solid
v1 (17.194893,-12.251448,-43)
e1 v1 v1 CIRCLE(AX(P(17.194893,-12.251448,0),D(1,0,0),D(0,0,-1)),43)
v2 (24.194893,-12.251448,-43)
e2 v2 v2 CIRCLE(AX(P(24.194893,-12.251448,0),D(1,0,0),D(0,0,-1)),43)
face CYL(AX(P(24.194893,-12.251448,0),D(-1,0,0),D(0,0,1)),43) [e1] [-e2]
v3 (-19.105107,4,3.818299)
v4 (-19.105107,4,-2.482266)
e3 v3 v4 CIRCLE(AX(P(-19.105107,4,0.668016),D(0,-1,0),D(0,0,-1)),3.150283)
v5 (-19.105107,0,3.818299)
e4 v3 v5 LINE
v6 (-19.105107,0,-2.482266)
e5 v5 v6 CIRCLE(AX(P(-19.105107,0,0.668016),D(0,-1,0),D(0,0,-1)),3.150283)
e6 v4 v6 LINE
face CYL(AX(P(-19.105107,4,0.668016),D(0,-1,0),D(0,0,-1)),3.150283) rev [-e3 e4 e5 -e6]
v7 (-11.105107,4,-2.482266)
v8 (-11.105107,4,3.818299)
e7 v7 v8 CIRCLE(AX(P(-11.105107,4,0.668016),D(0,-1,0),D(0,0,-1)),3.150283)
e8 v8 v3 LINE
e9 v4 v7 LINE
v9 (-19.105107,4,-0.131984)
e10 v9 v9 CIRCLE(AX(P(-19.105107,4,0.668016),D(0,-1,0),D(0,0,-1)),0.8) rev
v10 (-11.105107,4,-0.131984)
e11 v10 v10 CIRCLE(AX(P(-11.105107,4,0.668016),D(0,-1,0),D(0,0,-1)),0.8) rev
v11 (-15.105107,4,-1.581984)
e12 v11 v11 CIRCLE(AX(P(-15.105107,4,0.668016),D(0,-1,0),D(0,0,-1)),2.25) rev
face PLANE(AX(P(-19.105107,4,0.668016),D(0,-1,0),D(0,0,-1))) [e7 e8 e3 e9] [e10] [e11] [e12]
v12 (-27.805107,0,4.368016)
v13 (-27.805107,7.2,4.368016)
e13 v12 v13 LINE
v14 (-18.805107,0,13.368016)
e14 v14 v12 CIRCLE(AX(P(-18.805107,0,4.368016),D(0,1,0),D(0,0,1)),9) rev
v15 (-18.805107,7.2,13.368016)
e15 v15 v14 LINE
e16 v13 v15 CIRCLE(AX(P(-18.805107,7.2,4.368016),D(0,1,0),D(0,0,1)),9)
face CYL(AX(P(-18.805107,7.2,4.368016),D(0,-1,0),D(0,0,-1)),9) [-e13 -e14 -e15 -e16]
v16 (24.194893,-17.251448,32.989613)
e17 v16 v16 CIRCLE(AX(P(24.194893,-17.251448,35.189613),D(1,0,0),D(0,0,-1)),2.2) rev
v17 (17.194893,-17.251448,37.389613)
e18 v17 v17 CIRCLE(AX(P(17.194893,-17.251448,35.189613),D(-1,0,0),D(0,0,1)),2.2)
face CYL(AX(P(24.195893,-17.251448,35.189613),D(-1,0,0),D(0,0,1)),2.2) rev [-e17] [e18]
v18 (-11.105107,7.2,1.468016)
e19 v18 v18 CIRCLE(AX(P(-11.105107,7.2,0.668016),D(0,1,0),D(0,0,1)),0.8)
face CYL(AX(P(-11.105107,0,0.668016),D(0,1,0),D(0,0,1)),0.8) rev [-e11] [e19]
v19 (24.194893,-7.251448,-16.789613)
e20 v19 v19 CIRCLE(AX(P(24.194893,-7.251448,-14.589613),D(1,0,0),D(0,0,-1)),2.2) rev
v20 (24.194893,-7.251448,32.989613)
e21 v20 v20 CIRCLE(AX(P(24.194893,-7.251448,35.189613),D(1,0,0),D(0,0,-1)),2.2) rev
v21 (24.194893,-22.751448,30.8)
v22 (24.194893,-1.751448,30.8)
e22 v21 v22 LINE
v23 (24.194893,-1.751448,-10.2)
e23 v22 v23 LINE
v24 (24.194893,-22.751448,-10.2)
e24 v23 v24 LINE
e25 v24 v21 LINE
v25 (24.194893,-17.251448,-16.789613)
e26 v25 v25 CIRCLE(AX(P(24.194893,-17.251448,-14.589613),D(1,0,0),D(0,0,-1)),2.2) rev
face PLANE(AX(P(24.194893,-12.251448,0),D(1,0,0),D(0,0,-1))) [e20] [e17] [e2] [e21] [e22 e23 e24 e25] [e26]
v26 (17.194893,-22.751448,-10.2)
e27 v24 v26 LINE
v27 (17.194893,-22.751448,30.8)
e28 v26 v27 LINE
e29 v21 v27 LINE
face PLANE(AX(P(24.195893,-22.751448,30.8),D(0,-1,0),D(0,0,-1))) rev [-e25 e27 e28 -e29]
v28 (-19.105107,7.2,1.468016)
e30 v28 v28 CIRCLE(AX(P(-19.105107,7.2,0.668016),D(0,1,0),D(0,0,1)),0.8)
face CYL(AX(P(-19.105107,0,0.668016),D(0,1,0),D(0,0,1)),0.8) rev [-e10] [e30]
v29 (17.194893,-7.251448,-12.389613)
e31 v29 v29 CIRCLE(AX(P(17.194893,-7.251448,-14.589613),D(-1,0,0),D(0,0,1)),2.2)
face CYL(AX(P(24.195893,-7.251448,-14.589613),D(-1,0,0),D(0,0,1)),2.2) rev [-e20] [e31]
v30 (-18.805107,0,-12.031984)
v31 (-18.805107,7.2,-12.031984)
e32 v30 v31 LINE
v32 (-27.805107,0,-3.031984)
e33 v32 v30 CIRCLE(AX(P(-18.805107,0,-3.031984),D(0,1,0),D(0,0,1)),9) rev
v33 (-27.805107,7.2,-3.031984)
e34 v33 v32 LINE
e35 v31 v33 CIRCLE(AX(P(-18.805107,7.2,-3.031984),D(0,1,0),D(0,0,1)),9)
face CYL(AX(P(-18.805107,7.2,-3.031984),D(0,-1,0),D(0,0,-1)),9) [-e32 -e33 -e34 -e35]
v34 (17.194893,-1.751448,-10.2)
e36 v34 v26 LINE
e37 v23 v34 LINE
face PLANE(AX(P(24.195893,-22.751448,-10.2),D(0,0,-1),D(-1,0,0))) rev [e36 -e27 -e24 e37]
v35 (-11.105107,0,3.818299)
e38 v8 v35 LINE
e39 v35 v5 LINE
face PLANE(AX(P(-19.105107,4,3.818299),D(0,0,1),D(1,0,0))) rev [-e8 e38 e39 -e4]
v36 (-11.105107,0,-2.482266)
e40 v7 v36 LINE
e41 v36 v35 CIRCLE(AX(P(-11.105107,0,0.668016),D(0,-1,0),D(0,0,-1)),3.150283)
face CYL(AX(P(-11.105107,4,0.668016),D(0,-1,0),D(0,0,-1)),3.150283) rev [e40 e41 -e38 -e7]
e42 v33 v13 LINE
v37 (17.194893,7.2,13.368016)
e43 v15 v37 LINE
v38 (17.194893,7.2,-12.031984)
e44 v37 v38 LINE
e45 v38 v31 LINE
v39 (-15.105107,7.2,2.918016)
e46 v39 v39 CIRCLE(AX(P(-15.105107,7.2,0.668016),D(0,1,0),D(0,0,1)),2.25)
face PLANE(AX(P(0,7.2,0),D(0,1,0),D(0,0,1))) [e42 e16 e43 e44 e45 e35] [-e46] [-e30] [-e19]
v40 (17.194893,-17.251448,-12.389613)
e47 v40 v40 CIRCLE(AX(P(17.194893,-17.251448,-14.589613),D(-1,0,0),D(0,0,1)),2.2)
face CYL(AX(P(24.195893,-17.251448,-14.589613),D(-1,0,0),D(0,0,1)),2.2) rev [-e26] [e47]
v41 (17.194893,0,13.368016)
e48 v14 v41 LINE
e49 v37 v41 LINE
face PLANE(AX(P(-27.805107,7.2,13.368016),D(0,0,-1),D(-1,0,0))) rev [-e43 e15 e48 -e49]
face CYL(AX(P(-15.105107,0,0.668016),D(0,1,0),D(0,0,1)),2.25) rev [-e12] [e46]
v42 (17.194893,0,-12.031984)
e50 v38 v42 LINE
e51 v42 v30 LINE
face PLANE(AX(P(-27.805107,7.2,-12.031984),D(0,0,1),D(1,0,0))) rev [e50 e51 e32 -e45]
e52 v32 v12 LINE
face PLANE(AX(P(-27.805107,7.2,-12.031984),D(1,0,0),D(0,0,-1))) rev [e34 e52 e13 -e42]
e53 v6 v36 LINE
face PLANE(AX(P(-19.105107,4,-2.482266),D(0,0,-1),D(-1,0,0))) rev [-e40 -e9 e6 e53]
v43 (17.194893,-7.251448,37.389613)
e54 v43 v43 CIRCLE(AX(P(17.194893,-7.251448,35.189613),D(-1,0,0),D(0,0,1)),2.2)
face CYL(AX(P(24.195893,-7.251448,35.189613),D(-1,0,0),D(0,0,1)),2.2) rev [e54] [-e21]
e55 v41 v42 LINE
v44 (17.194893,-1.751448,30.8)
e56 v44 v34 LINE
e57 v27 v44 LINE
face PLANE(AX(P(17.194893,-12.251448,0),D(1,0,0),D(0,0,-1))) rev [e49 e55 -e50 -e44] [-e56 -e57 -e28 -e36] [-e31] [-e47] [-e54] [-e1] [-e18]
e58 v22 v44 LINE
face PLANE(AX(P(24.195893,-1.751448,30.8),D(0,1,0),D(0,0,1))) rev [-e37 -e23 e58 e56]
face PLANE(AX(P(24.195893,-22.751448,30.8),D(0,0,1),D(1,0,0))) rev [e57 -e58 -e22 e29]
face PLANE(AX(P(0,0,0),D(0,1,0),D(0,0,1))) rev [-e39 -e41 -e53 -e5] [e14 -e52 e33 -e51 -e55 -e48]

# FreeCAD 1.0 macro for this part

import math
import FreeCAD as App
import Part
import Sketcher


def edges_at(feature, points):
    """Names of the edges that pass closest to the given points."""
    edges = feature.Shape.Edges
    near = lambda p: min(range(len(edges)), key=lambda i: edges[i].distToShape(Part.Vertex(*p))[0])
    return sorted({f"Edge{near(p) + 1}" for p in points})

doc = App.newDocument("Part")
body = doc.addObject("PartDesign::Body", "Body")

# Sketch on XZ plane
sketch1 = body.newObject("Sketcher::SketchObject", "Sketch")
sketch1.AttachmentSupport = (doc.getObject("XZ_Plane"), [""])
sketch1.MapMode = "FlatFace"
sketch1.addGeometry(Part.LineSegment(App.Vector(-28, -12, 0), App.Vector(-28, 13, 0)), False)
sketch1.addGeometry(Part.LineSegment(App.Vector(-28, 13, 0), App.Vector(17, 13, 0)), False)
sketch1.addGeometry(Part.LineSegment(App.Vector(17, 13, 0), App.Vector(17, -12, 0)), False)
sketch1.addGeometry(Part.LineSegment(App.Vector(17, -12, 0), App.Vector(-28, -12, 0)), False)
sketch1.addConstraint(Sketcher.Constraint("Coincident", 0, 2, 1, 1))
sketch1.addConstraint(Sketcher.Constraint("Coincident", 1, 2, 2, 1))
sketch1.addConstraint(Sketcher.Constraint("Coincident", 2, 2, 3, 1))
sketch1.addConstraint(Sketcher.Constraint("Coincident", 3, 2, 0, 1))
sketch1.addConstraint(Sketcher.Constraint("Vertical", 0))
sketch1.addConstraint(Sketcher.Constraint("Horizontal", 1))
sketch1.addConstraint(Sketcher.Constraint("Vertical", 2))
sketch1.addConstraint(Sketcher.Constraint("Horizontal", 3))
sketch1.addConstraint(Sketcher.Constraint("DistanceX", 1, 1, 1, 2, 45.0))
sketch1.addConstraint(Sketcher.Constraint("DistanceY", 0, 1, 0, 2, 25.4))
sketch1.addConstraint(Sketcher.Constraint("DistanceX", 0, 2, -1, 1, 27.805107))
sketch1.addConstraint(Sketcher.Constraint("DistanceY", -1, 1, 0, 2, 13.368016))
pad1 = body.newObject("PartDesign::Pad", "Pad")
pad1.Profile = sketch1
pad1.Length = 7.2
pad1.Reversed = True
doc.recompute()

fillet = body.newObject("PartDesign::Fillet", "Fillet")
fillet.Base = (pad1, edges_at(pad1, [(-27.805, 3.6, -12.032), (-27.805, 3.6, 13.368)]))
fillet.Radius = 9

# Sketch on XZ plane
sketch2 = body.newObject("Sketcher::SketchObject", "Sketch001")
sketch2.AttachmentSupport = (doc.getObject("XZ_Plane"), [""])
sketch2.MapMode = "FlatFace"
sketch2.AttachmentOffset = App.Placement(App.Vector(0, 0, -7.2), App.Rotation())
sketch2.addGeometry(Part.Circle(App.Vector(-15.1, 0.7, 0), App.Vector(0, 0, 1), 2.2), False)
sketch2.addGeometry(Part.Circle(App.Vector(-19.1, 0.7, 0), App.Vector(0, 0, 1), 0.8), False)
sketch2.addGeometry(Part.Circle(App.Vector(-11.1, 0.7, 0), App.Vector(0, 0, 1), 0.8), False)
sketch2.addConstraint(Sketcher.Constraint("Equal", 1, 2))
sketch2.addConstraint(Sketcher.Constraint("Horizontal", 0, 3, 1, 3))
sketch2.addConstraint(Sketcher.Constraint("Horizontal", 1, 3, 2, 3))
sketch2.addConstraint(Sketcher.Constraint("Diameter", 0, 4.5))
sketch2.addConstraint(Sketcher.Constraint("Diameter", 1, 1.6))
sketch2.addConstraint(Sketcher.Constraint("DistanceX", 1, 3, 0, 3, 4.0))
sketch2.addConstraint(Sketcher.Constraint("DistanceX", 0, 3, 2, 3, 4.0))
sketch2.addConstraint(Sketcher.Constraint("DistanceX", 0, 3, -1, 1, 15.105107))
sketch2.addConstraint(Sketcher.Constraint("DistanceY", -1, 1, 0, 3, 0.668016))
pocket1 = body.newObject("PartDesign::Pocket", "Pocket")
pocket1.Profile = sketch2
pocket1.Type = "ThroughAll"
pocket1.Reversed = True

# Sketch on XZ plane
sketch3 = body.newObject("Sketcher::SketchObject", "Sketch002")
sketch3.AttachmentSupport = (doc.getObject("XZ_Plane"), [""])
sketch3.MapMode = "FlatFace"
sketch3.addGeometry(Part.LineSegment(App.Vector(-11.1, 3.8, 0), App.Vector(-19.1, 3.8, 0)), False)
sketch3.addGeometry(Part.ArcOfCircle(Part.Circle(App.Vector(-19.1, 0.7, 0), App.Vector(0, 0, 1), 3.2), math.radians(90), math.radians(270)), False)
sketch3.addGeometry(Part.LineSegment(App.Vector(-19.1, -2.5, 0), App.Vector(-11.1, -2.5, 0)), False)
sketch3.addGeometry(Part.ArcOfCircle(Part.Circle(App.Vector(-11.1, 0.7, 0), App.Vector(0, 0, 1), 3.2), math.radians(-90), math.radians(90)), False)
sketch3.addConstraint(Sketcher.Constraint("Tangent", 0, 2, 1, 1))
sketch3.addConstraint(Sketcher.Constraint("Tangent", 1, 2, 2, 1))
sketch3.addConstraint(Sketcher.Constraint("Tangent", 2, 2, 3, 1))
sketch3.addConstraint(Sketcher.Constraint("Tangent", 3, 2, 0, 1))
sketch3.addConstraint(Sketcher.Constraint("Horizontal", 0))
sketch3.addConstraint(Sketcher.Constraint("Horizontal", 2))
sketch3.addConstraint(Sketcher.Constraint("DistanceX", 0, 2, 0, 1, 8.0))
sketch3.addConstraint(Sketcher.Constraint("Radius", 1, 3.150283))
sketch3.addConstraint(Sketcher.Constraint("DistanceY", -1, 1, 0, 2, 3.818299))
sketch3.addConstraint(Sketcher.Constraint("DistanceX", 1, 3, -1, 1, 19.105107))
pocket2 = body.newObject("PartDesign::Pocket", "Pocket001")
pocket2.Profile = sketch3
pocket2.Length = 4

# Sketch on YZ plane
sketch4 = body.newObject("Sketcher::SketchObject", "Sketch003")
sketch4.AttachmentSupport = (doc.getObject("YZ_Plane"), [""])
sketch4.MapMode = "FlatFace"
sketch4.AttachmentOffset = App.Placement(App.Vector(0, 0, 17.194893), App.Rotation())
sketch4.addGeometry(Part.Circle(App.Vector(-12, 0, 0), App.Vector(0, 0, 1), 43), False)
sketch4.addConstraint(Sketcher.Constraint("PointOnObject", 0, 3, -1))
sketch4.addConstraint(Sketcher.Constraint("Diameter", 0, 86.0))
sketch4.addConstraint(Sketcher.Constraint("DistanceX", 0, 3, -1, 1, 12.251448))
pad2 = body.newObject("PartDesign::Pad", "Pad001")
pad2.Profile = sketch4
pad2.Length = 7

# Sketch on YZ plane
sketch5 = body.newObject("Sketcher::SketchObject", "Sketch004")
sketch5.AttachmentSupport = (doc.getObject("YZ_Plane"), [""])
sketch5.MapMode = "FlatFace"
sketch5.AttachmentOffset = App.Placement(App.Vector(0, 0, 24.194893), App.Rotation())
sketch5.addGeometry(Part.Circle(App.Vector(-12.3, 0, 0), App.Vector(0, 0, 1), 4.1), False)
sketch5.addConstraint(Sketcher.Constraint("PointOnObject", 0, 3, -1))
sketch5.addConstraint(Sketcher.Constraint("Diameter", 0, 8.140111))
sketch5.addConstraint(Sketcher.Constraint("DistanceX", 0, 3, -1, 1, 12.251448))
pocket3 = body.newObject("PartDesign::Pocket", "Pocket002")
pocket3.Profile = sketch5
pocket3.Type = "UpToFirst"

# Sketch on YZ plane
sketch6 = body.newObject("Sketcher::SketchObject", "Sketch005")
sketch6.AttachmentSupport = (doc.getObject("YZ_Plane"), [""])
sketch6.MapMode = "FlatFace"
sketch6.AttachmentOffset = App.Placement(App.Vector(0, 0, 17.194893), App.Rotation())
sketch6.addGeometry(Part.Circle(App.Vector(-7.3, 35.2, 0), App.Vector(0, 0, 1), 2.2), False)
sketch6.addConstraint(Sketcher.Constraint("Diameter", 0, 4.4))
sketch6.addConstraint(Sketcher.Constraint("DistanceX", 0, 3, -1, 1, 7.251448))
sketch6.addConstraint(Sketcher.Constraint("DistanceY", -1, 1, 0, 3, 35.189613))
pocket4 = body.newObject("PartDesign::Pocket", "Pocket003")
pocket4.Profile = sketch6
pocket4.Type = "UpToFirst"
pocket4.Reversed = True

# Sketch on YZ plane
sketch7 = body.newObject("Sketcher::SketchObject", "Sketch006")
sketch7.AttachmentSupport = (doc.getObject("YZ_Plane"), [""])
sketch7.MapMode = "FlatFace"
sketch7.AttachmentOffset = App.Placement(App.Vector(0, 0, 17.194893), App.Rotation())
sketch7.addGeometry(Part.Circle(App.Vector(-17.3, 35.2, 0), App.Vector(0, 0, 1), 2.2), False)
sketch7.addConstraint(Sketcher.Constraint("Diameter", 0, 4.4))
sketch7.addConstraint(Sketcher.Constraint("DistanceX", 0, 3, -1, 1, 17.251448))
sketch7.addConstraint(Sketcher.Constraint("DistanceY", -1, 1, 0, 3, 35.189613))
pocket5 = body.newObject("PartDesign::Pocket", "Pocket004")
pocket5.Profile = sketch7
pocket5.Type = "UpToFirst"
pocket5.Reversed = True

# Sketch on YZ plane
sketch8 = body.newObject("Sketcher::SketchObject", "Sketch007")
sketch8.AttachmentSupport = (doc.getObject("YZ_Plane"), [""])
sketch8.MapMode = "FlatFace"
sketch8.AttachmentOffset = App.Placement(App.Vector(0, 0, 17.194893), App.Rotation())
sketch8.addGeometry(Part.Circle(App.Vector(-7.3, -14.6, 0), App.Vector(0, 0, 1), 2.2), False)
sketch8.addConstraint(Sketcher.Constraint("Diameter", 0, 4.4))
sketch8.addConstraint(Sketcher.Constraint("DistanceX", 0, 3, -1, 1, 7.251448))
sketch8.addConstraint(Sketcher.Constraint("DistanceY", 0, 3, -1, 1, 14.589613))
pocket6 = body.newObject("PartDesign::Pocket", "Pocket005")
pocket6.Profile = sketch8
pocket6.Type = "UpToFirst"
pocket6.Reversed = True

# Sketch on YZ plane
sketch9 = body.newObject("Sketcher::SketchObject", "Sketch008")
sketch9.AttachmentSupport = (doc.getObject("YZ_Plane"), [""])
sketch9.MapMode = "FlatFace"
sketch9.AttachmentOffset = App.Placement(App.Vector(0, 0, 17.194893), App.Rotation())
sketch9.addGeometry(Part.Circle(App.Vector(-17.3, -14.6, 0), App.Vector(0, 0, 1), 2.2), False)
sketch9.addConstraint(Sketcher.Constraint("Diameter", 0, 4.4))
sketch9.addConstraint(Sketcher.Constraint("DistanceX", 0, 3, -1, 1, 17.251448))
sketch9.addConstraint(Sketcher.Constraint("DistanceY", 0, 3, -1, 1, 14.589613))
pocket7 = body.newObject("PartDesign::Pocket", "Pocket006")
pocket7.Profile = sketch9
pocket7.Type = "UpToFirst"
pocket7.Reversed = True

# Sketch on YZ plane
sketch10 = body.newObject("Sketcher::SketchObject", "Sketch009")
sketch10.AttachmentSupport = (doc.getObject("YZ_Plane"), [""])
sketch10.MapMode = "FlatFace"
sketch10.AttachmentOffset = App.Placement(App.Vector(0, 0, 17.194893), App.Rotation())
sketch10.addGeometry(Part.LineSegment(App.Vector(-2, -10, 0), App.Vector(-23, -10, 0)), False)
sketch10.addGeometry(Part.LineSegment(App.Vector(-23, -10, 0), App.Vector(-23, 31, 0)), False)
sketch10.addGeometry(Part.LineSegment(App.Vector(-23, 31, 0), App.Vector(-2, 31, 0)), False)
sketch10.addGeometry(Part.LineSegment(App.Vector(-2, 31, 0), App.Vector(-2, -10, 0)), False)
sketch10.addConstraint(Sketcher.Constraint("Coincident", 0, 2, 1, 1))
sketch10.addConstraint(Sketcher.Constraint("Coincident", 1, 2, 2, 1))
sketch10.addConstraint(Sketcher.Constraint("Coincident", 2, 2, 3, 1))
sketch10.addConstraint(Sketcher.Constraint("Coincident", 3, 2, 0, 1))
sketch10.addConstraint(Sketcher.Constraint("Horizontal", 0))
sketch10.addConstraint(Sketcher.Constraint("Vertical", 1))
sketch10.addConstraint(Sketcher.Constraint("Horizontal", 2))
sketch10.addConstraint(Sketcher.Constraint("Vertical", 3))
sketch10.addConstraint(Sketcher.Constraint("DistanceX", 0, 2, 0, 1, 21.0))
sketch10.addConstraint(Sketcher.Constraint("DistanceY", 1, 1, 1, 2, 41.0))
sketch10.addConstraint(Sketcher.Constraint("DistanceY", 0, 2, -1, 1, 10.2))
sketch10.addConstraint(Sketcher.Constraint("DistanceX", 0, 2, -1, 1, 22.751448))
pocket8 = body.newObject("PartDesign::Pocket", "Pocket007")
pocket8.Profile = sketch10
pocket8.Type = "UpToFirst"
pocket8.Reversed = True

doc.recompute()
